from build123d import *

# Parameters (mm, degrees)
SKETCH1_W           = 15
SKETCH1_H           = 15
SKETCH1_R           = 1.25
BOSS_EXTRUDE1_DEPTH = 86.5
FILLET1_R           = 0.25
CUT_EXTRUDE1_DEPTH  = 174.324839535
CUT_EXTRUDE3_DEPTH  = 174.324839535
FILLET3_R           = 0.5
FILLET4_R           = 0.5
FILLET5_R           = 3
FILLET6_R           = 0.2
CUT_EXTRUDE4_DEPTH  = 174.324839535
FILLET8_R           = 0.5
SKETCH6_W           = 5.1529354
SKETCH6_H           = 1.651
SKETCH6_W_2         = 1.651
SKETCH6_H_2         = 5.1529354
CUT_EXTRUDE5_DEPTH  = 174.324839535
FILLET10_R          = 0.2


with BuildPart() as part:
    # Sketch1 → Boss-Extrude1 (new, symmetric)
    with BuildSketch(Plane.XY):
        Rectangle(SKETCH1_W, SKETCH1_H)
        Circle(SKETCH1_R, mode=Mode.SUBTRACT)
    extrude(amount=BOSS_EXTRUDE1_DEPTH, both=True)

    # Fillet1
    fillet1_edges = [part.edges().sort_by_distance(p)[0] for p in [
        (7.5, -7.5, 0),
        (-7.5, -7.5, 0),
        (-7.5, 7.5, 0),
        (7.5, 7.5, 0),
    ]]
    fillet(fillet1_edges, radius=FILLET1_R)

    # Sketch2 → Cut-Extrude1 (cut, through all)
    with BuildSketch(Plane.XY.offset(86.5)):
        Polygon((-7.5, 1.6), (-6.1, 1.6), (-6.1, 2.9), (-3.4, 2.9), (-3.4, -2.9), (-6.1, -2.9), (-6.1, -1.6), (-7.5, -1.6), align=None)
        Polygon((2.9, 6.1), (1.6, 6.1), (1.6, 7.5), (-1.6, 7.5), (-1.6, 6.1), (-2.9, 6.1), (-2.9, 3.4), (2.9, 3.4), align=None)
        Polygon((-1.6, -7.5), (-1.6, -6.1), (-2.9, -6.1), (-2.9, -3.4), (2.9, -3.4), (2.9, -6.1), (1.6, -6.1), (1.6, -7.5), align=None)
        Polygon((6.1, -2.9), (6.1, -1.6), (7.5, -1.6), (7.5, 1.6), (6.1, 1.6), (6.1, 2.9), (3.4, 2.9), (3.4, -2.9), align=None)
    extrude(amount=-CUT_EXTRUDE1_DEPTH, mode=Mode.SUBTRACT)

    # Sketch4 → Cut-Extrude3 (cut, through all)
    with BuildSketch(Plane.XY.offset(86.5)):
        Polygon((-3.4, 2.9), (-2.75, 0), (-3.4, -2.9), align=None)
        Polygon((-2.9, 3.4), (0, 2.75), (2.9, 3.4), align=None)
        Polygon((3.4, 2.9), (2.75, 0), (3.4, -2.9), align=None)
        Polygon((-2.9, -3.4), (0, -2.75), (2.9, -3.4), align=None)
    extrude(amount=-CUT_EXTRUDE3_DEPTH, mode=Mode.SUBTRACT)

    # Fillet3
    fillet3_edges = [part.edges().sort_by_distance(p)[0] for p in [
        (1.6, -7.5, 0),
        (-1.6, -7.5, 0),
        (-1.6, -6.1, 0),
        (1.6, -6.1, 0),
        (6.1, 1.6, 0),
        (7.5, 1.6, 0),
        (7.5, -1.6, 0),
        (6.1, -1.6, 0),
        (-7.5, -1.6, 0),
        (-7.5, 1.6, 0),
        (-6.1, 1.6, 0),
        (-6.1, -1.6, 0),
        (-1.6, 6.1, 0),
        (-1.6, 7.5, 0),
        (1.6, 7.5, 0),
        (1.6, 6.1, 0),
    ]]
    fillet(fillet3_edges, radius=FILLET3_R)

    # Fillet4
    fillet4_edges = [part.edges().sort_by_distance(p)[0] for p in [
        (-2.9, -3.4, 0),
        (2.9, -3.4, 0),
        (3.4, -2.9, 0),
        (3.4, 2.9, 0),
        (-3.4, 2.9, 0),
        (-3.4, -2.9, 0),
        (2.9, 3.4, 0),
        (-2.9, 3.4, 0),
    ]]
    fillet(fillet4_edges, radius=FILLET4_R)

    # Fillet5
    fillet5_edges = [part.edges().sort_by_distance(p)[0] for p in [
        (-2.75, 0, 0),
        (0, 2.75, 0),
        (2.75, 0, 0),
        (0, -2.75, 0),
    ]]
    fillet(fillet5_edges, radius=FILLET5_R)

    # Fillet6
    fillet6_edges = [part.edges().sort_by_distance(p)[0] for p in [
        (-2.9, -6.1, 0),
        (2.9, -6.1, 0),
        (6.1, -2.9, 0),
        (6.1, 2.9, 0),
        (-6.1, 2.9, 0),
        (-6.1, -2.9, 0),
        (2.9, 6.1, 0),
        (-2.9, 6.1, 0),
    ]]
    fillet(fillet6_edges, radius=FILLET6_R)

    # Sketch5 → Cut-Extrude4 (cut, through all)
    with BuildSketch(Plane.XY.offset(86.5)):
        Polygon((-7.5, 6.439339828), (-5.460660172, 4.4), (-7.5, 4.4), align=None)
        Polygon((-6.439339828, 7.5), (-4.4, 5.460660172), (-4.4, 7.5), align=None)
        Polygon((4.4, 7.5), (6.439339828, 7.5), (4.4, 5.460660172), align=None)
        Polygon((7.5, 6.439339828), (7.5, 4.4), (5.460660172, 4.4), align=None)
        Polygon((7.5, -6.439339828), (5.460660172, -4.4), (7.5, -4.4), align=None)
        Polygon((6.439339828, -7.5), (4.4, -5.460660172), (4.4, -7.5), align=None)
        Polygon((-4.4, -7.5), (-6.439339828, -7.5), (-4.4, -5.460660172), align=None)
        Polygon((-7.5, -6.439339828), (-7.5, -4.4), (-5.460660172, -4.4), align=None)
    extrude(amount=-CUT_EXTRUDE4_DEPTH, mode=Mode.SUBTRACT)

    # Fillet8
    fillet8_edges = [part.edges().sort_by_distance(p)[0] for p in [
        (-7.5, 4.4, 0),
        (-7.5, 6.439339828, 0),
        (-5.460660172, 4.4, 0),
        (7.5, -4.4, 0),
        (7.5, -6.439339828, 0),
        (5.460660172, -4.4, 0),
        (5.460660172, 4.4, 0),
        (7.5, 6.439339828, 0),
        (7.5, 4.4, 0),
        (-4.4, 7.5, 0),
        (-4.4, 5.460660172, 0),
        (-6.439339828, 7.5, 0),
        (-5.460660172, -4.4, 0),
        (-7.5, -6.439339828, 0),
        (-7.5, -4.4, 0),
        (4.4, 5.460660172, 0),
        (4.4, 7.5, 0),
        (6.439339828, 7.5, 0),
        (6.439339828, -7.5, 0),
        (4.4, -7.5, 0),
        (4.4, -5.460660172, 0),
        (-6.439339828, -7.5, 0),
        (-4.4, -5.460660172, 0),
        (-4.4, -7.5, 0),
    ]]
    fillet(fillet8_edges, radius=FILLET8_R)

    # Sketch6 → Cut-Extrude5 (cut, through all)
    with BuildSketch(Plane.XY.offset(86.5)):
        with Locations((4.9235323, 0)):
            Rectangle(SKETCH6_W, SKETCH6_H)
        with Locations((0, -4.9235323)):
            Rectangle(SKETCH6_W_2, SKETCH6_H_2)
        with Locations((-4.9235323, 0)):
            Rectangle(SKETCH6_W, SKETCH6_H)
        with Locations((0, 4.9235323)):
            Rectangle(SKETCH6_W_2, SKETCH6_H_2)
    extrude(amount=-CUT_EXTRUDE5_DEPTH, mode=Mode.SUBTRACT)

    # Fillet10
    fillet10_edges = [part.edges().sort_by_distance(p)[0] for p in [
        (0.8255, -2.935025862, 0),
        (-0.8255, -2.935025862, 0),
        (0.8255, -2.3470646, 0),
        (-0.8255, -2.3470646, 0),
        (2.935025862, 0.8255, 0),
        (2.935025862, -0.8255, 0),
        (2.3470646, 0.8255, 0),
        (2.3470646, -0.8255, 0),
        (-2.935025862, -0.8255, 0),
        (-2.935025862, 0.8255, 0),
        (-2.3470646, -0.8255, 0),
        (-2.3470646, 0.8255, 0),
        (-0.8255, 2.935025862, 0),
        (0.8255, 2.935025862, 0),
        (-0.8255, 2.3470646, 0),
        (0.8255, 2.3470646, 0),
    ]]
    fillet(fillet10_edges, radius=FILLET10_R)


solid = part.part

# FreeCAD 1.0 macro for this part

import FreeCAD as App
import Part
import Sketcher
Q = App.Units.Quantity


def edges_at(feature, points):
    """Names of the edges that pass closest to the given points."""
    edges = feature.Shape.Edges
    near = lambda p: min(range(len(edges)), key=lambda i: edges[i].distToShape(Part.Vertex(*p))[0])
    return sorted({f"Edge{near(p) + 1}" for p in points})


def add_polygon(sketch, points):
    """Adds a closed chain of lines whose ends are joined by coincident constraints."""
    first, n = sketch.GeometryCount, len(points)
    for a, b in zip(points, points[1:] + points[:1]):
        sketch.addGeometry(Part.LineSegment(App.Vector(*a, 0), App.Vector(*b, 0)), False)
    for i in range(n):
        sketch.addConstraint(Sketcher.Constraint("Coincident", first + i, 2, first + (i + 1) % n, 1))

doc = App.newDocument("Part")
body = doc.addObject("PartDesign::Body", "Body")

sketch1 = body.newObject("Sketcher::SketchObject", "Sketch")
sketch1.AttachmentSupport = (doc.getObject("XY_Plane"), [""])
sketch1.MapMode = "FlatFace"
add_polygon(sketch1, [(-7.5, 7.5), (-7.5, -7.5), (7.5, -7.5), (7.5, 7.5)])
sketch1.addGeometry(Part.Circle(App.Vector(0, 0, 0), App.Vector(0, 0, 1), 1.2), False)
sketch1.addConstraint(Sketcher.Constraint("Vertical", 0))
sketch1.addConstraint(Sketcher.Constraint("Horizontal", 1))
sketch1.addConstraint(Sketcher.Constraint("Vertical", 2))
sketch1.addConstraint(Sketcher.Constraint("Horizontal", 3))
sketch1.addConstraint(Sketcher.Constraint("Coincident", 4, 3, -1, 1))
sketch1.addConstraint(Sketcher.Constraint("Symmetric", 0, 2, 2, 2, -1, 1))
sketch1.addConstraint(Sketcher.Constraint("Equal", 3, 0))
sketch1.addConstraint(Sketcher.Constraint("Diameter", 4, Q("2.5 mm")))
sketch1.addConstraint(Sketcher.Constraint("DistanceX", 1, 1, 1, 2, Q("15 mm")))
pad1 = body.newObject("PartDesign::Pad", "Pad")
pad1.Profile = sketch1
pad1.Length = 173
pad1.Midplane = True
doc.recompute()

fillet = body.newObject("PartDesign::Fillet", "Fillet")
fillet.Base = (pad1, edges_at(pad1, [
    (7.5, -7.5, 0),
    (-7.5, -7.5, 0),
    (-7.5, 7.5, 0),
    (7.5, 7.5, 0),
]))
fillet.Radius = 0.25

sketch2 = body.newObject("Sketcher::SketchObject", "Sketch001")
sketch2.AttachmentSupport = (doc.getObject("XY_Plane"), [""])
sketch2.MapMode = "FlatFace"
sketch2.AttachmentOffset = App.Placement(App.Vector(0, 0, 86.5), App.Rotation())
add_polygon(sketch2, [(-6.1, 1.6), (-7.5, 1.6), (-7.5, -1.6), (-6.1, -1.6), (-6.1, -2.9), (-3.4, -2.9), (-3.4, 2.9), (-6.1, 2.9)])
add_polygon(sketch2, [(2.9, 6.1), (1.6, 6.1), (1.6, 7.5), (-1.6, 7.5), (-1.6, 6.1), (-2.9, 6.1), (-2.9, 3.4), (2.9, 3.4)])
add_polygon(sketch2, [(-1.6, -6.1), (-1.6, -7.5), (1.6, -7.5), (1.6, -6.1), (2.9, -6.1), (2.9, -3.4), (-2.9, -3.4), (-2.9, -6.1)])
add_polygon(sketch2, [(6.1, -2.9), (6.1, -1.6), (7.5, -1.6), (7.5, 1.6), (6.1, 1.6), (6.1, 2.9), (3.4, 2.9), (3.4, -2.9)])
sketch2.addConstraint(Sketcher.Constraint("Horizontal", 0))
sketch2.addConstraint(Sketcher.Constraint("Vertical", 1))
sketch2.addConstraint(Sketcher.Constraint("Horizontal", 2))
sketch2.addConstraint(Sketcher.Constraint("Vertical", 3))
sketch2.addConstraint(Sketcher.Constraint("Horizontal", 4))
sketch2.addConstraint(Sketcher.Constraint("Vertical", 5))
sketch2.addConstraint(Sketcher.Constraint("Horizontal", 6))
sketch2.addConstraint(Sketcher.Constraint("Vertical", 7))
sketch2.addConstraint(Sketcher.Constraint("Horizontal", 8))
sketch2.addConstraint(Sketcher.Constraint("Vertical", 9))
sketch2.addConstraint(Sketcher.Constraint("Horizontal", 10))
sketch2.addConstraint(Sketcher.Constraint("Vertical", 11))
sketch2.addConstraint(Sketcher.Constraint("Horizontal", 12))
sketch2.addConstraint(Sketcher.Constraint("Vertical", 13))
sketch2.addConstraint(Sketcher.Constraint("Horizontal", 14))
sketch2.addConstraint(Sketcher.Constraint("Vertical", 15))
sketch2.addConstraint(Sketcher.Constraint("Vertical", 16))
sketch2.addConstraint(Sketcher.Constraint("Horizontal", 17))
sketch2.addConstraint(Sketcher.Constraint("Vertical", 18))
sketch2.addConstraint(Sketcher.Constraint("Horizontal", 19))
sketch2.addConstraint(Sketcher.Constraint("Vertical", 20))
sketch2.addConstraint(Sketcher.Constraint("Horizontal", 21))
sketch2.addConstraint(Sketcher.Constraint("Vertical", 22))
sketch2.addConstraint(Sketcher.Constraint("Horizontal", 23))
sketch2.addConstraint(Sketcher.Constraint("Vertical", 24))
sketch2.addConstraint(Sketcher.Constraint("Horizontal", 25))
sketch2.addConstraint(Sketcher.Constraint("Vertical", 26))
sketch2.addConstraint(Sketcher.Constraint("Horizontal", 27))
sketch2.addConstraint(Sketcher.Constraint("Vertical", 28))
sketch2.addConstraint(Sketcher.Constraint("Horizontal", 29))
sketch2.addConstraint(Sketcher.Constraint("Vertical", 30))
sketch2.addConstraint(Sketcher.Constraint("Horizontal", 31))
sketch2.addConstraint(Sketcher.Constraint("Symmetric", 9, 2, 16, 2, -1, 1))
sketch2.addConstraint(Sketcher.Constraint("Symmetric", 11, 2, 18, 2, -1, 1))
sketch2.addConstraint(Sketcher.Constraint("Symmetric", 13, 2, 20, 2, -1, 1))
sketch2.addConstraint(Sketcher.Constraint("Symmetric", 15, 2, 22, 2, -1, 1))
sketch2.addConstraint(Sketcher.Constraint("Symmetric", 7, 2, 24, 2, -1, 1))
sketch2.addConstraint(Sketcher.Constraint("Symmetric", 1, 2, 26, 2, -1, 1))
sketch2.addConstraint(Sketcher.Constraint("Symmetric", 3, 2, 28, 2, -1, 1))
sketch2.addConstraint(Sketcher.Constraint("Symmetric", 5, 2, 30, 2, -1, 1))
sketch2.addConstraint(Sketcher.Constraint("Symmetric", 8, 2, 11, 2, -2))
sketch2.addConstraint(Sketcher.Constraint("Symmetric", 2, 2, 24, 2, -2))
sketch2.addConstraint(Sketcher.Constraint("Horizontal", 6, 2, 28, 2))
sketch2.addConstraint(Sketcher.Constraint("Vertical", 15, 2, 19, 2))
sketch2.addConstraint(Sketcher.Constraint("Equal", 17, 1))
sketch2.addConstraint(Sketcher.Constraint("Equal", 23, 3))
sketch2.addConstraint(Sketcher.Constraint("Equal", 27, 9))
sketch2.addConstraint(Sketcher.Constraint("Equal", 31, 13))
sketch2.addConstraint(Sketcher.Constraint("DistanceX", 0, 2, 0, 1, Q("1.4 mm")))
sketch2.addConstraint(Sketcher.Constraint("DistanceX", 4, 1, 4, 2, Q("2.7 mm")))
sketch2.addConstraint(Sketcher.Constraint("DistanceX", 8, 2, 8, 1, Q("1.3 mm")))
sketch2.addConstraint(Sketcher.Constraint("DistanceX", 10, 2, 10, 1, Q("3.2 mm")))
sketch2.addConstraint(Sketcher.Constraint("DistanceX", 5, 2, 8, 2, Q("5 mm")))
sketch2.addConstraint(Sketcher.Constraint("DistanceY", 4, 2, 8, 2, Q("9 mm")))
pocket1 = body.newObject("PartDesign::Pocket", "Pocket")
pocket1.Profile = sketch2
pocket1.Type = "ThroughAll"

sketch3 = body.newObject("Sketcher::SketchObject", "Sketch002")
sketch3.AttachmentSupport = (doc.getObject("XY_Plane"), [""])
sketch3.MapMode = "FlatFace"
sketch3.AttachmentOffset = App.Placement(App.Vector(0, 0, 86.5), App.Rotation())
add_polygon(sketch3, [(-2.8, 0), (-3.4, 2.9), (-3.4, -2.9)])
add_polygon(sketch3, [(-2.9, 3.4), (0, 2.8), (2.9, 3.4)])
add_polygon(sketch3, [(3.4, 2.9), (2.8, 0), (3.4, -2.9)])
add_polygon(sketch3, [(0, -2.8), (-2.9, -3.4), (2.9, -3.4)])
sketch3.addConstraint(Sketcher.Constraint("Vertical", 1))
sketch3.addConstraint(Sketcher.Constraint("Horizontal", 5))
sketch3.addConstraint(Sketcher.Constraint("Vertical", 8))
sketch3.addConstraint(Sketcher.Constraint("Horizontal", 10))
sketch3.addConstraint(Sketcher.Constraint("Symmetric", 2, 2, 6, 2, -1, 1))
sketch3.addConstraint(Sketcher.Constraint("Symmetric", 0, 2, 7, 2, -1, 1))
sketch3.addConstraint(Sketcher.Constraint("Symmetric", 4, 2, 9, 2, -1, 1))
sketch3.addConstraint(Sketcher.Constraint("Symmetric", 3, 2, 11, 2, -1, 1))
sketch3.addConstraint(Sketcher.Constraint("PointOnObject", 2, 2, -1))
sketch3.addConstraint(Sketcher.Constraint("PointOnObject", 3, 2, -2))
sketch3.addConstraint(Sketcher.Constraint("Perpendicular", 2, 3))
sketch3.addConstraint(Sketcher.Constraint("Perpendicular", 0, 4))
sketch3.addConstraint(Sketcher.Constraint("Perpendicular", 3, 6))
sketch3.addConstraint(Sketcher.Constraint("Perpendicular", 6, 11))
sketch3.addConstraint(Sketcher.Constraint("Horizontal", 1, 2, 7, 2))
sketch3.addConstraint(Sketcher.Constraint("Equal", 10, 1))
sketch3.addConstraint(Sketcher.Constraint("DistanceX", 5, 2, 5, 1, Q("5.8 mm")))
sketch3.addConstraint(Sketcher.Constraint("DistanceX", 0, 2, -1, 1, Q("3.4 mm")))
sketch3.addConstraint(Sketcher.Constraint("DistanceY", -1, 1, 4, 2, Q("3.4 mm")))
sketch3.addConstraint(Sketcher.Constraint("DistanceX", 2, 2, 6, 2, Q("5.5 mm")))
pocket2 = body.newObject("PartDesign::Pocket", "Pocket001")
pocket2.Profile = sketch3
pocket2.Type = "ThroughAll"
doc.recompute()

fillet2 = body.newObject("PartDesign::Fillet", "Fillet001")
fillet2.Base = (pocket2, edges_at(pocket2, [
    (1.6, -7.5, 0),
    (-1.6, -7.5, 0),
    (-1.6, -6.1, 0),
    (1.6, -6.1, 0),
    (6.1, 1.6, 0),
    (7.5, 1.6, 0),
    (7.5, -1.6, 0),
    (6.1, -1.6, 0),
    (-7.5, -1.6, 0),
    (-7.5, 1.6, 0),
    (-6.1, 1.6, 0),
    (-6.1, -1.6, 0),
    (-1.6, 6.1, 0),
    (-1.6, 7.5, 0),
    (1.6, 7.5, 0),
    (1.6, 6.1, 0),
]))
fillet2.Radius = 0.5
doc.recompute()

fillet3 = body.newObject("PartDesign::Fillet", "Fillet002")
fillet3.Base = (fillet2, edges_at(fillet2, [
    (-2.9, -3.4, 0),
    (2.9, -3.4, 0),
    (3.4, -2.9, 0),
    (3.4, 2.9, 0),
    (-3.4, 2.9, 0),
    (-3.4, -2.9, 0),
    (2.9, 3.4, 0),
    (-2.9, 3.4, 0),
]))
fillet3.Radius = 0.5
doc.recompute()

fillet4 = body.newObject("PartDesign::Fillet", "Fillet003")
fillet4.Base = (fillet3, edges_at(fillet3, [
    (-2.75, 0, 0),
    (0, 2.75, 0),
    (2.75, 0, 0),
    (0, -2.75, 0),
]))
fillet4.Radius = 3
doc.recompute()

fillet5 = body.newObject("PartDesign::Fillet", "Fillet004")
fillet5.Base = (fillet4, edges_at(fillet4, [
    (-2.9, -6.1, 0),
    (2.9, -6.1, 0),
    (6.1, -2.9, 0),
    (6.1, 2.9, 0),
    (-6.1, 2.9, 0),
    (-6.1, -2.9, 0),
    (2.9, 6.1, 0),
    (-2.9, 6.1, 0),
]))
fillet5.Radius = 0.2

sketch4 = body.newObject("Sketcher::SketchObject", "Sketch003")
sketch4.AttachmentSupport = (doc.getObject("XY_Plane"), [""])
sketch4.MapMode = "FlatFace"
sketch4.AttachmentOffset = App.Placement(App.Vector(0, 0, 86.5), App.Rotation())
add_polygon(sketch4, [(-5.5, 4.4), (-7.5, 6.4), (-7.5, 4.4)])
add_polygon(sketch4, [(-6.4, 7.5), (-4.4, 5.5), (-4.4, 7.5)])
add_polygon(sketch4, [(6.4, 7.5), (4.4, 7.5), (4.4, 5.5)])
add_polygon(sketch4, [(7.5, 4.4), (7.5, 6.4), (5.5, 4.4)])
add_polygon(sketch4, [(5.5, -4.4), (7.5, -6.4), (7.5, -4.4)])
add_polygon(sketch4, [(6.4, -7.5), (4.4, -5.5), (4.4, -7.5)])
add_polygon(sketch4, [(-6.4, -7.5), (-4.4, -7.5), (-4.4, -5.5)])
add_polygon(sketch4, [(-7.5, -4.4), (-7.5, -6.4), (-5.5, -4.4)])
sketch4.addConstraint(Sketcher.Constraint("Vertical", 1))
sketch4.addConstraint(Sketcher.Constraint("Horizontal", 2))
sketch4.addConstraint(Sketcher.Constraint("Vertical", 4))
sketch4.addConstraint(Sketcher.Constraint("Horizontal", 5))
sketch4.addConstraint(Sketcher.Constraint("Horizontal", 6))
sketch4.addConstraint(Sketcher.Constraint("Vertical", 7))
sketch4.addConstraint(Sketcher.Constraint("Vertical", 9))
sketch4.addConstraint(Sketcher.Constraint("Horizontal", 11))
sketch4.addConstraint(Sketcher.Constraint("Vertical", 13))
sketch4.addConstraint(Sketcher.Constraint("Horizontal", 14))
sketch4.addConstraint(Sketcher.Constraint("Vertical", 16))
sketch4.addConstraint(Sketcher.Constraint("Horizontal", 17))
sketch4.addConstraint(Sketcher.Constraint("Horizontal", 18))
sketch4.addConstraint(Sketcher.Constraint("Vertical", 19))
sketch4.addConstraint(Sketcher.Constraint("Vertical", 21))
sketch4.addConstraint(Sketcher.Constraint("Horizontal", 23))
sketch4.addConstraint(Sketcher.Constraint("Symmetric", 0, 2, 12, 2, -1, 1))
sketch4.addConstraint(Sketcher.Constraint("Symmetric", 2, 2, 14, 2, -1, 1))
sketch4.addConstraint(Sketcher.Constraint("Symmetric", 3, 2, 15, 2, -1, 1))
sketch4.addConstraint(Sketcher.Constraint("Symmetric", 5, 2, 17, 2, -1, 1))
sketch4.addConstraint(Sketcher.Constraint("Symmetric", 6, 2, 18, 2, -1, 1))
sketch4.addConstraint(Sketcher.Constraint("Symmetric", 9, 2, 21, 2, -1, 1))
sketch4.addConstraint(Sketcher.Constraint("Symmetric", 10, 2, 22, 2, -1, 1))
sketch4.addConstraint(Sketcher.Constraint("Symmetric", 4, 2, 6, 2, -2))
sketch4.addConstraint(Sketcher.Constraint("Symmetric", 0, 2, 9, 2, -2))
sketch4.addConstraint(Sketcher.Constraint("Symmetric", 2, 2, 10, 2, -2))
sketch4.addConstraint(Sketcher.Constraint("Parallel", 0, 3))
sketch4.addConstraint(Sketcher.Constraint("Perpendicular", 3, 8))
sketch4.addConstraint(Sketcher.Constraint("Parallel", 8, 10))
sketch4.addConstraint(Sketcher.Constraint("Perpendicular", 15, 20))
sketch4.addConstraint(Sketcher.Constraint("Horizontal", 3, 2, 7, 2))
sketch4.addConstraint(Sketcher.Constraint("Horizontal", 15, 2, 19, 2))
sketch4.addConstraint(Sketcher.Constraint("Equal", 2, 5))
sketch4.addConstraint(Sketcher.Constraint("DistanceX", 0, 2, -1, 1, Q("7.5 mm")))
sketch4.addConstraint(Sketcher.Constraint("DistanceY", -1, 1, 1, 2, Q("4.4 mm")))
sketch4.addConstraint(Sketcher.Constraint("DistanceX", 3, 2, -1, 1, Q("4.4 mm")))
sketch4.addConstraint(Sketcher.Constraint("DistanceY", -1, 1, 4, 2, Q("7.5 mm")))
sketch4.addConstraint(Sketcher.Constraint("DistanceX", 2, 1, 2, 2, Q("2.03934 mm")))
pocket3 = body.newObject("PartDesign::Pocket", "Pocket002")
pocket3.Profile = sketch4
pocket3.Type = "ThroughAll"
doc.recompute()

fillet6 = body.newObject("PartDesign::Fillet", "Fillet005")
fillet6.Base = (pocket3, edges_at(pocket3, [
    (-7.5, 4.4, 0),
    (-7.5, 6.439, 0),
    (-5.461, 4.4, 0),
    (7.5, -4.4, 0),
    (7.5, -6.439, 0),
    (5.461, -4.4, 0),
    (5.461, 4.4, 0),
    (7.5, 6.439, 0),
    (7.5, 4.4, 0),
    (-4.4, 7.5, 0),
    (-4.4, 5.461, 0),
    (-6.439, 7.5, 0),
    (-5.461, -4.4, 0),
    (-7.5, -6.439, 0),
    (-7.5, -4.4, 0),
    (4.4, 5.461, 0),
    (4.4, 7.5, 0),
    (6.439, 7.5, 0),
    (6.439, -7.5, 0),
    (4.4, -7.5, 0),
    (4.4, -5.461, 0),
    (-6.439, -7.5, 0),
    (-4.4, -5.461, 0),
    (-4.4, -7.5, 0),
]))
fillet6.Radius = 0.5

sketch5 = body.newObject("Sketcher::SketchObject", "Sketch004")
sketch5.AttachmentSupport = (doc.getObject("XY_Plane"), [""])
sketch5.MapMode = "FlatFace"
sketch5.AttachmentOffset = App.Placement(App.Vector(0, 0, 86.5), App.Rotation())
add_polygon(sketch5, [(2.3, 0.8), (2.3, -0.8), (7.5, -0.8), (7.5, 0.8)])
add_polygon(sketch5, [(-0.8, -2.3), (-0.8, -7.5), (0.8, -7.5), (0.8, -2.3)])
add_polygon(sketch5, [(-7.5, 0.8), (-7.5, -0.8), (-2.3, -0.8), (-2.3, 0.8)])
add_polygon(sketch5, [(-0.8, 7.5), (-0.8, 2.3), (0.8, 2.3), (0.8, 7.5)])
sketch5.addConstraint(Sketcher.Constraint("Vertical", 0))
sketch5.addConstraint(Sketcher.Constraint("Horizontal", 1))
sketch5.addConstraint(Sketcher.Constraint("Vertical", 2))
sketch5.addConstraint(Sketcher.Constraint("Horizontal", 3))
sketch5.addConstraint(Sketcher.Constraint("Vertical", 4))
sketch5.addConstraint(Sketcher.Constraint("Horizontal", 5))
sketch5.addConstraint(Sketcher.Constraint("Vertical", 6))
sketch5.addConstraint(Sketcher.Constraint("Horizontal", 7))
sketch5.addConstraint(Sketcher.Constraint("Vertical", 8))
sketch5.addConstraint(Sketcher.Constraint("Horizontal", 9))
sketch5.addConstraint(Sketcher.Constraint("Vertical", 10))
sketch5.addConstraint(Sketcher.Constraint("Horizontal", 11))
sketch5.addConstraint(Sketcher.Constraint("Vertical", 12))
sketch5.addConstraint(Sketcher.Constraint("Horizontal", 13))
sketch5.addConstraint(Sketcher.Constraint("Vertical", 14))
sketch5.addConstraint(Sketcher.Constraint("Horizontal", 15))
sketch5.addConstraint(Sketcher.Constraint("Symmetric", 2, 2, 8, 2, -1, 1))
sketch5.addConstraint(Sketcher.Constraint("Symmetric", 0, 2, 10, 2, -1, 1))
sketch5.addConstraint(Sketcher.Constraint("Symmetric", 6, 2, 12, 2, -1, 1))
sketch5.addConstraint(Sketcher.Constraint("Symmetric", 4, 2, 14, 2, -1, 1))
sketch5.addConstraint(Sketcher.Constraint("Horizontal", 1, 2, 8, 2))
sketch5.addConstraint(Sketcher.Constraint("Vertical", 7, 2, 12, 2))
sketch5.addConstraint(Sketcher.Constraint("Equal", 15, 0))
sketch5.addConstraint(Sketcher.Constraint("Equal", 11, 4))
sketch5.addConstraint(Sketcher.Constraint("DistanceX", -1, 1, 1, 2, Q("7.5 mm")))
sketch5.addConstraint(Sketcher.Constraint("DistanceY", 4, 2, -1, 1, Q("7.5 mm")))
sketch5.addConstraint(Sketcher.Constraint("DistanceX", 5, 1, 5, 2, Q("1.651 mm")))
sketch5.addConstraint(Sketcher.Constraint("DistanceX", 1, 1, 1, 2, Q("5.152935 mm")))
pocket4 = body.newObject("PartDesign::Pocket", "Pocket003")
pocket4.Profile = sketch5
pocket4.Type = "ThroughAll"
doc.recompute()

fillet7 = body.newObject("PartDesign::Fillet", "Fillet006")
fillet7.Base = (pocket4, edges_at(pocket4, [
    (0.826, -2.935, 0),
    (-0.826, -2.935, 0),
    (0.826, -2.347, 0),
    (-0.826, -2.347, 0),
    (2.935, 0.826, 0),
    (2.935, -0.826, 0),
    (2.347, 0.826, 0),
    (2.347, -0.826, 0),
    (-2.935, -0.826, 0),
    (-2.935, 0.826, 0),
    (-2.347, -0.826, 0),
    (-2.347, 0.826, 0),
    (-0.826, 2.935, 0),
    (0.826, 2.935, 0),
    (-0.826, 2.347, 0),
    (0.826, 2.347, 0),
]))
fillet7.Radius = 0.2

doc.recompute()
